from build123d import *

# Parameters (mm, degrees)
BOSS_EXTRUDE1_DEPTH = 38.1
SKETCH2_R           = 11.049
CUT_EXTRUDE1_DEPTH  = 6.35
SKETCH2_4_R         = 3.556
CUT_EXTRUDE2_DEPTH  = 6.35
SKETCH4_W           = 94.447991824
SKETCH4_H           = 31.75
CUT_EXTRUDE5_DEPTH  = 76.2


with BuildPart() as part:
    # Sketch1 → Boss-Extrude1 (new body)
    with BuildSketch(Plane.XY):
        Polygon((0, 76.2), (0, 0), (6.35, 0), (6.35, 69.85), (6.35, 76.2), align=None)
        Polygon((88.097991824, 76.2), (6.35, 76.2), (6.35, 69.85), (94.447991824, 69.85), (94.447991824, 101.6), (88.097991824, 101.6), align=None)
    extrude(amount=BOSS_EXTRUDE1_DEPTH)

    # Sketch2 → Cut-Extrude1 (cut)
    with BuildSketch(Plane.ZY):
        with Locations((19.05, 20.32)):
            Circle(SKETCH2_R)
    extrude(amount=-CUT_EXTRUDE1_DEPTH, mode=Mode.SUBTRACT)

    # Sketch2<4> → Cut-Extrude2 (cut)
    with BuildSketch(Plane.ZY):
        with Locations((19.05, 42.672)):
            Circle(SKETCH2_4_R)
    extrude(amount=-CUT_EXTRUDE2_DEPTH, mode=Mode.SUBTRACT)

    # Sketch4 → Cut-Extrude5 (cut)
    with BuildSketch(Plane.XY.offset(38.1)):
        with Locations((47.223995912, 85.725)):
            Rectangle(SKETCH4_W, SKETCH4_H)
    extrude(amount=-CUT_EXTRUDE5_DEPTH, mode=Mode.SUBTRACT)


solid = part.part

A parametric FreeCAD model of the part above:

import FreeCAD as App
import Part
import Sketcher

V = App.Vector
Q = App.Units.Quantity

doc = App.newDocument("Part")
body = doc.addObject("PartDesign::Body", "Body")

# Sketch on XY plane
sketch1 = doc.addObject("Sketcher::SketchObject", "Sketch")
body.addObject(sketch1)
sketch1.AttachmentSupport = (doc.XY_Plane, [""])
sketch1.MapMode = "FlatFace"
sketch1.addGeometry([
    Part.LineSegment(V(0, 76, 0), V(0, 0, 0)),  # 0
    Part.LineSegment(V(0, 0, 0), V(6, 0, 0)),  # 1
    Part.LineSegment(V(6, 0, 0), V(6, 70, 0)),  # 2
    Part.LineSegment(V(6, 70, 0), V(94, 70, 0)),  # 3
    Part.LineSegment(V(94, 70, 0), V(94, 102, 0)),  # 4
    Part.LineSegment(V(94, 102, 0), V(88, 102, 0)),  # 5
    Part.LineSegment(V(88, 102, 0), V(88, 76, 0)),  # 6
    Part.LineSegment(V(88, 76, 0), V(0, 76, 0)),  # 7
], False)
sketch1.addConstraint([
    Sketcher.Constraint("Coincident", 0, 2, 1, 1),
    Sketcher.Constraint("Coincident", 1, 2, 2, 1),
    Sketcher.Constraint("Coincident", 2, 2, 3, 1),
    Sketcher.Constraint("Coincident", 3, 2, 4, 1),
    Sketcher.Constraint("Coincident", 4, 2, 5, 1),
    Sketcher.Constraint("Coincident", 5, 2, 6, 1),
    Sketcher.Constraint("Coincident", 6, 2, 7, 1),
    Sketcher.Constraint("Coincident", 7, 2, 0, 1),
    Sketcher.Constraint("Vertical", 0),
    Sketcher.Constraint("Horizontal", 1),
    Sketcher.Constraint("Vertical", 2),
    Sketcher.Constraint("Horizontal", 3),
    Sketcher.Constraint("Vertical", 4),
    Sketcher.Constraint("Horizontal", 5),
    Sketcher.Constraint("Vertical", 6),
    Sketcher.Constraint("Horizontal", 7),
    Sketcher.Constraint("Coincident", 0, 2, -1, 1),
    Sketcher.Constraint("Equal", 1, 5),
    Sketcher.Constraint("DistanceY", 0, 2, 0, 1, Q("3 in")),
    Sketcher.Constraint("DistanceY", 6, 2, 6, 1, Q("1 in")),
    Sketcher.Constraint("DistanceX", 1, 1, 1, 2, Q("0.25 in")),
    Sketcher.Constraint("DistanceY", 2, 1, 2, 2, Q("2.75 in")),
    Sketcher.Constraint("DistanceX", 3, 1, 3, 2, 88.097992),
])
pad1 = doc.addObject("PartDesign::Pad", "Pad")
body.addObject(pad1)
pad1.Profile = sketch1
pad1.Length = Q("1.5 in")

# Sketch on YZ plane
sketch2 = doc.addObject("Sketcher::SketchObject", "Sketch001")
body.addObject(sketch2)
sketch2.AttachmentSupport = (doc.YZ_Plane, [""])
sketch2.MapMode = "FlatFace"
sketch2.addGeometry(Part.Circle(V(20, 19, 0), V(0, 0, 1), 11), False)
sketch2.addConstraint([
    Sketcher.Constraint("Diameter", 0, Q("0.87 in")),
    Sketcher.Constraint("DistanceX", -1, 1, 0, 3, Q("0.8 in")),
    Sketcher.Constraint("DistanceY", -1, 1, 0, 3, Q("0.75 in")),
])
pocket1 = doc.addObject("PartDesign::Pocket", "Pocket")
body.addObject(pocket1)
pocket1.Profile = sketch2
pocket1.Length = Q("0.25 in")
pocket1.Reversed = True

# Sketch on YZ plane
sketch3 = doc.addObject("Sketcher::SketchObject", "Sketch002")
body.addObject(sketch3)
sketch3.AttachmentSupport = (doc.YZ_Plane, [""])
sketch3.MapMode = "FlatFace"
sketch3.addGeometry(Part.Circle(V(42.7, 19.1, 0), V(0, 0, 1), 3.6), False)
sketch3.addConstraint([
    Sketcher.Constraint("Diameter", 0, Q("0.28 in")),
    Sketcher.Constraint("DistanceX", -1, 1, 0, 3, Q("1.68 in")),
    Sketcher.Constraint("DistanceY", -1, 1, 0, 3, Q("0.75 in")),
])
pocket2 = doc.addObject("PartDesign::Pocket", "Pocket001")
body.addObject(pocket2)
pocket2.Profile = sketch3
pocket2.Length = Q("0.25 in")
pocket2.Reversed = True

# Sketch on XY plane
sketch4 = doc.addObject("Sketcher::SketchObject", "Sketch003")
body.addObject(sketch4)
sketch4.AttachmentSupport = (doc.XY_Plane, [""])
sketch4.MapMode = "FlatFace"
sketch4.AttachmentOffset = App.Placement(V(0, 0, 1.5 * 25.4), App.Rotation())
sketch4.addGeometry([
    Part.LineSegment(V(0, 102, 0), V(0, 70, 0)),
    Part.LineSegment(V(0, 70, 0), V(94, 70, 0)),
    Part.LineSegment(V(94, 70, 0), V(94, 102, 0)),
    Part.LineSegment(V(94, 102, 0), V(0, 102, 0)),
], False)
sketch4.addConstraint([
    Sketcher.Constraint("Coincident", 0, 2, 1, 1),
    Sketcher.Constraint("Coincident", 1, 2, 2, 1),
    Sketcher.Constraint("Coincident", 2, 2, 3, 1),
    Sketcher.Constraint("Coincident", 3, 2, 0, 1),
    Sketcher.Constraint("Vertical", 0),
    Sketcher.Constraint("Horizontal", 1),
    Sketcher.Constraint("Vertical", 2),
    Sketcher.Constraint("Horizontal", 3),
    Sketcher.Constraint("PointOnObject", 0, 2, -2),
    Sketcher.Constraint("DistanceY", -1, 1, 2, 2, Q("4 in")),
    Sketcher.Constraint("DistanceY", 0, 2, 0, 1, Q("1.25 in")),
    Sketcher.Constraint("DistanceX", 1, 1, 1, 2, 94.447992),
])
pocket3 = doc.addObject("PartDesign::Pocket", "Pocket002")
body.addObject(pocket3)
pocket3.Profile = sketch4
pocket3.Length = Q("3 in")

doc.recompute()
